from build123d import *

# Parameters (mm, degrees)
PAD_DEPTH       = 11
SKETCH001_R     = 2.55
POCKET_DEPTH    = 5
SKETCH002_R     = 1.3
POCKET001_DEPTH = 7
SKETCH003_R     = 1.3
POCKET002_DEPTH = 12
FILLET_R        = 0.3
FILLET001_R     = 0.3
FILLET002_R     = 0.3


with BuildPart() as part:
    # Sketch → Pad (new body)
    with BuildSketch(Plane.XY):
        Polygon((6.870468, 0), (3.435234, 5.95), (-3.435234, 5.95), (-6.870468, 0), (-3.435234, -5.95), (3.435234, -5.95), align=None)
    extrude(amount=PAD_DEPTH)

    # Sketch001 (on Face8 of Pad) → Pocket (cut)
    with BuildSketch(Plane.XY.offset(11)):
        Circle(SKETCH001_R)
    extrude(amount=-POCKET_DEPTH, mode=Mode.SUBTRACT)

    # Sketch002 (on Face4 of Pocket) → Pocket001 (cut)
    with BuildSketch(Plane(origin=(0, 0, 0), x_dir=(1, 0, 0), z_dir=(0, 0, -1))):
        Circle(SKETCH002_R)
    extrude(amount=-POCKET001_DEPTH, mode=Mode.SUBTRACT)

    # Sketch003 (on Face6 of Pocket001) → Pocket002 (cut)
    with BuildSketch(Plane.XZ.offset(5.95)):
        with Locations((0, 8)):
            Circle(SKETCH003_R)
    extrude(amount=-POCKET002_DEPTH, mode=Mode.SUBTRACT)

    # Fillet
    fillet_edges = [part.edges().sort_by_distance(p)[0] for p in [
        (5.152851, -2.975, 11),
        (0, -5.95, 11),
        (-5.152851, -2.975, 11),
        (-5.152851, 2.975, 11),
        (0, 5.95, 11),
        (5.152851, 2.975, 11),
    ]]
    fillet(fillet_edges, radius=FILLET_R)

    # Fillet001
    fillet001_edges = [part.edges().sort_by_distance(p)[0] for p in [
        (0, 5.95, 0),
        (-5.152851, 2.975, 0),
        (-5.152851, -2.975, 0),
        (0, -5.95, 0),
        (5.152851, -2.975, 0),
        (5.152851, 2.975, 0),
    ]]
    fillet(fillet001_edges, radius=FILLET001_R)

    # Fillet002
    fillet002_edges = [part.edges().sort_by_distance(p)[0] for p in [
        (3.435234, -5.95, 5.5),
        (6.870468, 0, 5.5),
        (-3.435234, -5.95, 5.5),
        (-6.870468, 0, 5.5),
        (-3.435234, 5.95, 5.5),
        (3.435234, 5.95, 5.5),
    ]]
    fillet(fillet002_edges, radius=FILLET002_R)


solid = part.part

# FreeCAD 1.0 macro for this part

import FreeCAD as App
import Part
import Sketcher
from FreeCAD import Vector
Q = App.Units.Quantity


def edges_at(feature, points):
    """Names of the edges that pass closest to the given points."""
    edges = feature.Shape.Edges
    near = lambda p: min(range(len(edges)), key=lambda i: edges[i].distToShape(Part.Vertex(*p))[0])
    return sorted({f"Edge{near(p) + 1}" for p in points})

doc = App.newDocument("Part")
body = doc.addObject("PartDesign::Body", "Body")

# Sketch on XY plane
sketch1 = body.newObject("Sketcher::SketchObject", "Sketch")
sketch1.AttachmentSupport = (doc.getObject("XY_Plane"), [""])
sketch1.MapMode = "FlatFace"
sketch1.addGeometry([
    Part.LineSegment(Vector(7, 0, 0), Vector(3, 6, 0)),  # 0
    Part.LineSegment(Vector(3, 6, 0), Vector(-3, 6, 0)),  # 1
    Part.LineSegment(Vector(-3, 6, 0), Vector(-7, 0, 0)),  # 2
    Part.LineSegment(Vector(-7, 0, 0), Vector(-3, -6, 0)),  # 3
    Part.LineSegment(Vector(-3, -6, 0), Vector(3, -6, 0)),  # 4
    Part.LineSegment(Vector(3, -6, 0), Vector(7, 0, 0)),  # 5
], False)
sketch1.addConstraint([
    Sketcher.Constraint("Coincident", 0, 2, 1, 1),
    Sketcher.Constraint("Coincident", 1, 2, 2, 1),
    Sketcher.Constraint("Coincident", 2, 2, 3, 1),
    Sketcher.Constraint("Coincident", 3, 2, 4, 1),
    Sketcher.Constraint("Coincident", 4, 2, 5, 1),
    Sketcher.Constraint("Coincident", 5, 2, 0, 1),
    Sketcher.Constraint("Horizontal", 1),
    Sketcher.Constraint("Horizontal", 4),
    Sketcher.Constraint("Symmetric", 0, 2, 3, 2, -1, 1),
    Sketcher.Constraint("Symmetric", 2, 2, 5, 2, -1, 1),
    Sketcher.Constraint("PointOnObject", 2, 2, -1),
    Sketcher.Constraint("Parallel", 2, 5),
    Sketcher.Constraint("Vertical", 1, 2, 3, 2),
    Sketcher.Constraint("Angle", 0, Q("119.999999 deg")),
    Sketcher.Constraint("DistanceY", 3, 2, 1, 2, Q("11.9 mm")),
    Sketcher.Constraint("DistanceX", 1, 2, 1, 1, Q("6.870468 mm")),
])
pad1 = body.newObject("PartDesign::Pad", "Pad")
pad1.Profile = sketch1
pad1.Length = 11

# Sketch on XY plane
sketch2 = body.newObject("Sketcher::SketchObject", "Sketch001")
sketch2.AttachmentSupport = (doc.getObject("XY_Plane"), [""])
sketch2.MapMode = "FlatFace"
sketch2.AttachmentOffset = App.Placement(Vector(0, 0, 11), App.Rotation())
sketch2.addGeometry(Part.Circle(Vector(0, 0, 0), Vector(0, 0, 1), 2.5), False)
sketch2.addConstraint([
    Sketcher.Constraint("Coincident", 0, 3, -1, 1),
    Sketcher.Constraint("Diameter", 0, Q("5.1 mm")),
])
pocket1 = body.newObject("PartDesign::Pocket", "Pocket")
pocket1.Profile = sketch2
pocket1.Length = 5

# Sketch on XY plane
sketch3 = body.newObject("Sketcher::SketchObject", "Sketch002")
sketch3.AttachmentSupport = (doc.getObject("XY_Plane"), [""])
sketch3.MapMode = "FlatFace"
sketch3.addGeometry(Part.Circle(Vector(0, 0, 0), Vector(0, 0, 1), 1.3), False)
sketch3.addConstraint([
    Sketcher.Constraint("Coincident", 0, 3, -1, 1),
    Sketcher.Constraint("Diameter", 0, Q("2.6 mm")),
])
pocket2 = body.newObject("PartDesign::Pocket", "Pocket001")
pocket2.Profile = sketch3
pocket2.Length = 7
pocket2.Reversed = True

# Sketch on XZ plane
sketch4 = body.newObject("Sketcher::SketchObject", "Sketch003")
sketch4.AttachmentSupport = (doc.getObject("XZ_Plane"), [""])
sketch4.MapMode = "FlatFace"
sketch4.AttachmentOffset = App.Placement(Vector(0, 0, 5.95), App.Rotation())
sketch4.addGeometry(Part.Circle(Vector(0, 8, 0), Vector(0, 0, 1), 1.3), False)
sketch4.addConstraint([
    Sketcher.Constraint("PointOnObject", 0, 3, -2),
    Sketcher.Constraint("Diameter", 0, Q("2.6 mm")),
    Sketcher.Constraint("DistanceY", -1, 1, 0, 3, Q("8 mm")),
])
pocket3 = body.newObject("PartDesign::Pocket", "Pocket002")
pocket3.Profile = sketch4
pocket3.Length = 12
doc.recompute()

fillet = body.newObject("PartDesign::Fillet", "Fillet")
fillet.Base = (pocket3, edges_at(pocket3, [
    (5.153, -2.975, 11),
    (0, -5.95, 11),
    (-5.153, -2.975, 11),
    (-5.153, 2.975, 11),
    (0, 5.95, 11),
    (5.153, 2.975, 11),
]))
fillet.Radius = 0.3
doc.recompute()

fillet2 = body.newObject("PartDesign::Fillet", "Fillet001")
fillet2.Base = (fillet, edges_at(fillet, [
    (0, 5.95, 0),
    (-5.153, 2.975, 0),
    (-5.153, -2.975, 0),
    (0, -5.95, 0),
    (5.153, -2.975, 0),
    (5.153, 2.975, 0),
]))
fillet2.Radius = 0.3
doc.recompute()

fillet3 = body.newObject("PartDesign::Fillet", "Fillet002")
fillet3.Base = (fillet2, edges_at(fillet2, [
    (3.435, -5.95, 5.5),
    (6.87, 0, 5.5),
    (-3.435, -5.95, 5.5),
    (-6.87, 0, 5.5),
    (-3.435, 5.95, 5.5),
    (3.435, 5.95, 5.5),
]))
fillet3.Radius = 0.3

doc.recompute()
